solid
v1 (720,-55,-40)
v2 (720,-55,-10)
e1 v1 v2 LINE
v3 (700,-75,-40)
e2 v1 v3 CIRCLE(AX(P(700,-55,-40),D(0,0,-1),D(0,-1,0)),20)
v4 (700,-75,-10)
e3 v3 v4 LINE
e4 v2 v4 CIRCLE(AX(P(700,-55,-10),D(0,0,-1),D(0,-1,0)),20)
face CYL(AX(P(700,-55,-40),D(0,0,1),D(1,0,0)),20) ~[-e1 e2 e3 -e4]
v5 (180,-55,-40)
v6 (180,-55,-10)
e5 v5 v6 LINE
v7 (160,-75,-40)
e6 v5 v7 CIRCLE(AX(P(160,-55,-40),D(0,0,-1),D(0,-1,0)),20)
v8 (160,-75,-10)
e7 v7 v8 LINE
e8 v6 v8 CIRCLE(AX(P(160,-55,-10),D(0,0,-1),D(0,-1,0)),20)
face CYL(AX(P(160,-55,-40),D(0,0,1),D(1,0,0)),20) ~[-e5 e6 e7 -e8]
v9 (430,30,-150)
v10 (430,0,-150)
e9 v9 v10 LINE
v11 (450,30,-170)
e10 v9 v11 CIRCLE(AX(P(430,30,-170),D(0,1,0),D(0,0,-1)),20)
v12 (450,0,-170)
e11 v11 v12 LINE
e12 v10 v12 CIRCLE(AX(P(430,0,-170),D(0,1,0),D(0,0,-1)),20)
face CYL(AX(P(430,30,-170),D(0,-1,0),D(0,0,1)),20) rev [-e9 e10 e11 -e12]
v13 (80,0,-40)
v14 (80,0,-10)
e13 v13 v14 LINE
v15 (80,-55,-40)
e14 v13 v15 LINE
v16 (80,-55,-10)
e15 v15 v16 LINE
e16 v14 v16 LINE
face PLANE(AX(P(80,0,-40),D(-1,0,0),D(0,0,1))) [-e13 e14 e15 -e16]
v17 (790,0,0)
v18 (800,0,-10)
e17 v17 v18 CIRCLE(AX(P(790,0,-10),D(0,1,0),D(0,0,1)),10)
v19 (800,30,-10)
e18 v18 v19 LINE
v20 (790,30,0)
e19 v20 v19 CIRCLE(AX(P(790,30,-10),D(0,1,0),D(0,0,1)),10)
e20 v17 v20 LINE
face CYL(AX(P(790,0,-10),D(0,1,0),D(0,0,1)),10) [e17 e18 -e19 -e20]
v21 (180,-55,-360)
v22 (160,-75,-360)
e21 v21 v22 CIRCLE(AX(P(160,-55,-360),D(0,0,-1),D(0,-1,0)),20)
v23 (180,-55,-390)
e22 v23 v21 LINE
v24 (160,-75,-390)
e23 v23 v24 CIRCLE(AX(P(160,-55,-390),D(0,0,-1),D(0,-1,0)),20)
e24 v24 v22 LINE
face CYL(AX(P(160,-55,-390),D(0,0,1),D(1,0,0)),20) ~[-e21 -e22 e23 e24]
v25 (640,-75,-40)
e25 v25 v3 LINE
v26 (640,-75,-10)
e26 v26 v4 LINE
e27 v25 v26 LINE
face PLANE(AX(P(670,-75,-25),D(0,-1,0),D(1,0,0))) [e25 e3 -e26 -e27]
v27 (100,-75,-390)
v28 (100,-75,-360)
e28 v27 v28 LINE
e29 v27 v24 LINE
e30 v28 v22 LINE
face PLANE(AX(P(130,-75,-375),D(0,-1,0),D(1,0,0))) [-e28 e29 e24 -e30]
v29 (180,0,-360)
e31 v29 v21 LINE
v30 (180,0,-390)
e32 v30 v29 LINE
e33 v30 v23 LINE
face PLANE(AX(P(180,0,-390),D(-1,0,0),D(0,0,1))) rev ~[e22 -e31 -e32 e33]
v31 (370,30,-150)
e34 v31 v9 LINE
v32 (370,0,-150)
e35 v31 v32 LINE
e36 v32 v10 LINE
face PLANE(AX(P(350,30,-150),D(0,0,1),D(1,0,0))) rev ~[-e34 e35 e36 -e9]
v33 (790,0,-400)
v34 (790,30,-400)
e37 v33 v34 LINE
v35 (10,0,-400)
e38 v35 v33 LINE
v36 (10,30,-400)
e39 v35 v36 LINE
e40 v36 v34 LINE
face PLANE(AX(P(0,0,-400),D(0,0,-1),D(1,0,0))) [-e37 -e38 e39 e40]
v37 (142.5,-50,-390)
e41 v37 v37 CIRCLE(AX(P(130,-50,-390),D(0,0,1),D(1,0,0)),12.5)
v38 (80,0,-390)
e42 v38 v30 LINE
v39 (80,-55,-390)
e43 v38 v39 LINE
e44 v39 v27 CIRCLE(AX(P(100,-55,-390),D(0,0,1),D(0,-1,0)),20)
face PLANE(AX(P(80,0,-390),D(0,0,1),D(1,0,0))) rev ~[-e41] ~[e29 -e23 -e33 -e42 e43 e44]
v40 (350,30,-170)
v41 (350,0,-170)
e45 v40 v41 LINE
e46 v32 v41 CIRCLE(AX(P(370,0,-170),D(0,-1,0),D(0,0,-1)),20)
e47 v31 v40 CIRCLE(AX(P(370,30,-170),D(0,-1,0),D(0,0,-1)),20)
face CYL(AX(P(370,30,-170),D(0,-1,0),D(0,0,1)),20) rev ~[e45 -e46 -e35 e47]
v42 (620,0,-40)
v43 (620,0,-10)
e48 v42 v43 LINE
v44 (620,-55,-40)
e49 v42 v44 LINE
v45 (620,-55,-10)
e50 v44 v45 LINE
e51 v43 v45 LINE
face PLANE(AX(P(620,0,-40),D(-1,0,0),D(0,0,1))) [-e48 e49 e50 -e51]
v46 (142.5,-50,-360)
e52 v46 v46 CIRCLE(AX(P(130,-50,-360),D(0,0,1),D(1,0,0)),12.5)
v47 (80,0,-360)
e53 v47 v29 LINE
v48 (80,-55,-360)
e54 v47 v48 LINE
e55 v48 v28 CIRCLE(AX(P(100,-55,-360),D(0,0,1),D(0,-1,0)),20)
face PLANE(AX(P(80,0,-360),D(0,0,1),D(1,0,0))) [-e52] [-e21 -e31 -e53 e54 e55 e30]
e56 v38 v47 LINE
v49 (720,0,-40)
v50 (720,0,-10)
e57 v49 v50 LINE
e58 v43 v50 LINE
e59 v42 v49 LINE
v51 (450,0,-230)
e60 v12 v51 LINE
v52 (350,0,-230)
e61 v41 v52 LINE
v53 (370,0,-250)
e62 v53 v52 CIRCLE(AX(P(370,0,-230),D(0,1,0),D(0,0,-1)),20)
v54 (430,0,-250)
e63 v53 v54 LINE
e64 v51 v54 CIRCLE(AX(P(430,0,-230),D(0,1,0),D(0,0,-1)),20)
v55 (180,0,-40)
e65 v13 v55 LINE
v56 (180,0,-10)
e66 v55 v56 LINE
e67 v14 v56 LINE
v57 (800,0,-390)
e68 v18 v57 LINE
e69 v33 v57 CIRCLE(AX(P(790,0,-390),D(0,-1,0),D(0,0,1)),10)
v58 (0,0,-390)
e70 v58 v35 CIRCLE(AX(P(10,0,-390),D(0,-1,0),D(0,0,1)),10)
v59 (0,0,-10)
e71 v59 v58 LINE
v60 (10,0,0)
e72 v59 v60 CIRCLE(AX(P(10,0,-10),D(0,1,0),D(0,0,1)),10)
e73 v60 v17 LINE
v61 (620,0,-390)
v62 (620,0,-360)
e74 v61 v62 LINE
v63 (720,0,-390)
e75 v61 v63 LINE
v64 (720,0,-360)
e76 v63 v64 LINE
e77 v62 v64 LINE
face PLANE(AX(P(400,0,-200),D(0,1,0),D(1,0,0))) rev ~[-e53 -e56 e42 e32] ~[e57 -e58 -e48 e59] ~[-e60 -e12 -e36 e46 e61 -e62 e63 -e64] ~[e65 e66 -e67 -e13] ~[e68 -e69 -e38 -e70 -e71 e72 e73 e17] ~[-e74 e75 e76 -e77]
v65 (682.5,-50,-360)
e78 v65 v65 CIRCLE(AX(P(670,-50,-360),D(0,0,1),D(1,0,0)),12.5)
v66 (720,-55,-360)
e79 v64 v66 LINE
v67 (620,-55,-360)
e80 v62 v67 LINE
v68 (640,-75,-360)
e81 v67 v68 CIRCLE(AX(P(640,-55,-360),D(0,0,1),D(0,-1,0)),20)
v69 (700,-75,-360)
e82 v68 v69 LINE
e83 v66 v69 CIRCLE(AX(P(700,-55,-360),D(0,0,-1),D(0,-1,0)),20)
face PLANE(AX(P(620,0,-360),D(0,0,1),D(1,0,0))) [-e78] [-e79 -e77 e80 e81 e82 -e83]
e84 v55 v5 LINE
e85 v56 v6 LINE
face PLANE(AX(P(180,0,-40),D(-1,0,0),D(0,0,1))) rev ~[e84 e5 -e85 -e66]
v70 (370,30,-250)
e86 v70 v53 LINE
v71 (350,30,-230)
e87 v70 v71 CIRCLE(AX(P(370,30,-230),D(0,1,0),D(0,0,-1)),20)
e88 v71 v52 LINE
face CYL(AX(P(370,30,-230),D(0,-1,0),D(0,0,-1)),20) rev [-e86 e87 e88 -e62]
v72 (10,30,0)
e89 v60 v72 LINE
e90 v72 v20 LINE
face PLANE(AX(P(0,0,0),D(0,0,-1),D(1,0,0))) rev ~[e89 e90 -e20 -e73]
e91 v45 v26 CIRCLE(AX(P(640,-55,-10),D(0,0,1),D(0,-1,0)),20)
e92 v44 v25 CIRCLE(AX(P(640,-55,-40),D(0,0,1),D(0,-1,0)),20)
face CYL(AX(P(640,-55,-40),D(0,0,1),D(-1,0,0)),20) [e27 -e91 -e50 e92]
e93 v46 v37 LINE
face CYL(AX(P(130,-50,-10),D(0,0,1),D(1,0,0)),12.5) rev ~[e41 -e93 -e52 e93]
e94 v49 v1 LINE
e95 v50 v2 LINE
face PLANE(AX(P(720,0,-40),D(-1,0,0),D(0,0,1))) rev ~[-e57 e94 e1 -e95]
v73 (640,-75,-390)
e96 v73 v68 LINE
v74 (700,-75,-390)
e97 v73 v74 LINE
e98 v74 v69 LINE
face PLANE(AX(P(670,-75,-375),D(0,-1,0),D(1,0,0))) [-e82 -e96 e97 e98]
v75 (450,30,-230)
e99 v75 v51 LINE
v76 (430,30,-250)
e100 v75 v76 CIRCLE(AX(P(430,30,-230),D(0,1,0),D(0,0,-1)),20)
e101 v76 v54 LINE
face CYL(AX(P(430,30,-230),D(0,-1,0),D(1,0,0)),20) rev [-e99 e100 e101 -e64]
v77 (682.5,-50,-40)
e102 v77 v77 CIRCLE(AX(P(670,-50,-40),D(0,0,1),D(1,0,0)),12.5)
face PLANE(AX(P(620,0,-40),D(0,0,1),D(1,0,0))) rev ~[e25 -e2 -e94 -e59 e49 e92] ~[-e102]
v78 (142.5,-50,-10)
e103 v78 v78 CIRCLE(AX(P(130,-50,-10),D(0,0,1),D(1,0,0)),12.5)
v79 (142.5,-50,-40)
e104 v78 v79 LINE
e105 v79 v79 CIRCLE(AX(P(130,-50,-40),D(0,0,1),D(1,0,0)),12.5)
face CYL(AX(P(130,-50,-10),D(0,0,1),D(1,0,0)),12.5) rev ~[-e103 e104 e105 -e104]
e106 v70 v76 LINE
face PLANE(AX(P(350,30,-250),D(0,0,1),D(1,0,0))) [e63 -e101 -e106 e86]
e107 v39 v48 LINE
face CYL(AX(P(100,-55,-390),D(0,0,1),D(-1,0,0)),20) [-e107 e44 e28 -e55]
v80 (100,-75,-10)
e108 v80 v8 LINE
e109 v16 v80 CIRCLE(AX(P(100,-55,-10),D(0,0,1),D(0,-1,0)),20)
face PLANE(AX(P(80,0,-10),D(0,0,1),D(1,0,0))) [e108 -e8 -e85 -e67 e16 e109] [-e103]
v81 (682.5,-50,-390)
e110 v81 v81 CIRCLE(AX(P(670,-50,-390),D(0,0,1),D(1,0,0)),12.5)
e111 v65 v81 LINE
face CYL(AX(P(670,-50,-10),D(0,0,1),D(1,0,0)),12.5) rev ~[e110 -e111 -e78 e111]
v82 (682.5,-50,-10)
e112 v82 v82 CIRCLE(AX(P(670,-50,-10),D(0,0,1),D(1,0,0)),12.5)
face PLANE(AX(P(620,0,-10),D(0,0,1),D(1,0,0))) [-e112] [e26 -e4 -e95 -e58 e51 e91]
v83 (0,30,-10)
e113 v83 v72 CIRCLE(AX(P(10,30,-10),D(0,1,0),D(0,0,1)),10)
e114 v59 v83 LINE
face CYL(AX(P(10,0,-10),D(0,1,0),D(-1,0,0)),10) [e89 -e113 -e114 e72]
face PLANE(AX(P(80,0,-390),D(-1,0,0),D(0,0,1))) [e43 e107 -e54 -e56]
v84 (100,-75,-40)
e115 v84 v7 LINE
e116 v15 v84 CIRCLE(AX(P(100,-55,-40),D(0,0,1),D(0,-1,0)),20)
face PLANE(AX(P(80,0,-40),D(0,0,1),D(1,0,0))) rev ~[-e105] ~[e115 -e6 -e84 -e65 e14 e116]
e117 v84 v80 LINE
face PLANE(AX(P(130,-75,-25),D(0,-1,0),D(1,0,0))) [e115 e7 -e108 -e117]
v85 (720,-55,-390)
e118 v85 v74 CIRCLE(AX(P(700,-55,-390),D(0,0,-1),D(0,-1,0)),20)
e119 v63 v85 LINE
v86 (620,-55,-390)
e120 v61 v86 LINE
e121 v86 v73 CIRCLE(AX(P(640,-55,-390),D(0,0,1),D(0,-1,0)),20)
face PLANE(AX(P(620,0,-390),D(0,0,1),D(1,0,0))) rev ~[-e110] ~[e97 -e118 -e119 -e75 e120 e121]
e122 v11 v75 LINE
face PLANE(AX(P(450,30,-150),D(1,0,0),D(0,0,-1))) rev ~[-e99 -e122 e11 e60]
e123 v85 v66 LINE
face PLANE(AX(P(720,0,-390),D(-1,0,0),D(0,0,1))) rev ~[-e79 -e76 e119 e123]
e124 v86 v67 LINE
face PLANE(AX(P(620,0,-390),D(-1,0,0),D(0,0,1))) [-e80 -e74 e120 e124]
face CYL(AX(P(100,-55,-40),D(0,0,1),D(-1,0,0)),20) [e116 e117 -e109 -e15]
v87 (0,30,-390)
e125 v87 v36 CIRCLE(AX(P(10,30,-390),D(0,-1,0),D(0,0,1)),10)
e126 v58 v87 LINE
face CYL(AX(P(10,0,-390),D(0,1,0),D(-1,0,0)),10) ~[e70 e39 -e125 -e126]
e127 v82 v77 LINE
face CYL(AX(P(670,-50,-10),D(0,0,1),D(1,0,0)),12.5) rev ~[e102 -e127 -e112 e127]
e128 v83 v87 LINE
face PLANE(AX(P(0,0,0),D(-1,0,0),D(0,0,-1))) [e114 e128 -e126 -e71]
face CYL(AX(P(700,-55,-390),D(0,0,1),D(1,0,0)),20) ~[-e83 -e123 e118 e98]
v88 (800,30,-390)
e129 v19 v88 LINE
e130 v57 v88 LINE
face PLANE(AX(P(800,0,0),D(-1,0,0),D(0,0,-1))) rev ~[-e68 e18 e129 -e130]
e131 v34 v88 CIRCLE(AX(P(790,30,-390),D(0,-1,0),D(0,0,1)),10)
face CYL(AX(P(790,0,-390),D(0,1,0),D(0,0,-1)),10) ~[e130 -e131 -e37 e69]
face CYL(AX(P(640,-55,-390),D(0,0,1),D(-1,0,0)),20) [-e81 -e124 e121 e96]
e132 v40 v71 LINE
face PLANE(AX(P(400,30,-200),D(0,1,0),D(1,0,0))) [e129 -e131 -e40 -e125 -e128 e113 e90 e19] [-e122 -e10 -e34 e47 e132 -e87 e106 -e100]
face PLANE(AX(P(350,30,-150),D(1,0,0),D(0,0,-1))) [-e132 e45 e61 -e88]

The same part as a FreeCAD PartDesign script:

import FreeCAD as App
import Part
import Sketcher

V = App.Vector
Q = App.Units.Quantity


def edges_at(feature, points):
    """Names of the edges that pass closest to the given points."""
    edges = feature.Shape.Edges
    near = lambda p: min(range(len(edges)), key=lambda i: edges[i].distToShape(Part.Vertex(*p))[0])
    return sorted({f"Edge{near(p) + 1}" for p in points})

doc = App.newDocument("Part")
params = doc.addObject("Spreadsheet::Sheet", "Params")
for row, (alias, value) in enumerate([
    ("sketch1_width", "800 mm"),
    ("sketch1_height", "400 mm"),
    ("pad1_length", "30 mm"),
    ("sketch2_width", "100 mm"),
    ("fillet_radius", "20 mm"),
    ("sketch3_width", "100 mm"),
    ("sketch3_height", "30 mm"),
    ("pad2_length", "75 mm"),
    ("sketch4_diameter", "25 mm"),
    ("sketch5_diameter", "25 mm"),
    ("fillet2_radius", "20 mm"),
    ("fillet3_radius", "10 mm"),
], start=1):
    params.set(f"A{row}", alias)
    params.set(f"B{row}", "=" + value)
    params.setAlias(f"B{row}", alias)

body = doc.addObject("PartDesign::Body", "Body")

# Sketch on XZ plane
sketch1 = body.newObject("Sketcher::SketchObject", "Sketch")
sketch1.AttachmentSupport = (doc.getObject("XZ_Plane"), [""])
sketch1.MapMode = "FlatFace"
sketch1.addGeometry(Part.LineSegment(V(0, -400, 0), V(0, 0, 0)), False)
sketch1.addGeometry(Part.LineSegment(V(0, 0, 0), V(800, 0, 0)), False)
sketch1.addGeometry(Part.LineSegment(V(800, 0, 0), V(800, -400, 0)), False)
sketch1.addGeometry(Part.LineSegment(V(800, -400, 0), V(0, -400, 0)), False)
sketch1.addConstraint(Sketcher.Constraint("Coincident", 0, 2, 1, 1))
sketch1.addConstraint(Sketcher.Constraint("Coincident", 1, 2, 2, 1))
sketch1.addConstraint(Sketcher.Constraint("Coincident", 2, 2, 3, 1))
sketch1.addConstraint(Sketcher.Constraint("Coincident", 3, 2, 0, 1))
sketch1.addConstraint(Sketcher.Constraint("Vertical", 0))
sketch1.addConstraint(Sketcher.Constraint("Horizontal", 1))
sketch1.addConstraint(Sketcher.Constraint("Vertical", 2))
sketch1.addConstraint(Sketcher.Constraint("Horizontal", 3))
sketch1.addConstraint(Sketcher.Constraint("Coincident", 0, 2, -1, 1))
sketch1.addConstraint(Sketcher.Constraint("DistanceX", 1, 1, 1, 2, Q("800 mm")))
sketch1.addConstraint(Sketcher.Constraint("DistanceY", 0, 1, 0, 2, Q("400 mm")))
sketch1.setExpression("Constraints[9]", "Params.sketch1_width")
sketch1.setExpression("Constraints[10]", "Params.sketch1_height")
pad1 = body.newObject("PartDesign::Pad", "Pad")
pad1.Profile = sketch1
pad1.setExpression("Length", "Params.pad1_length")
pad1.Reversed = True

# Sketch on XZ plane
sketch2 = body.newObject("Sketcher::SketchObject", "Sketch001")
sketch2.AttachmentSupport = (doc.getObject("XZ_Plane"), [""])
sketch2.MapMode = "FlatFace"
sketch2.AttachmentOffset = App.Placement(V(0, 0, -30), App.Rotation())
sketch2.addGeometry(Part.LineSegment(V(350, -250, 0), V(350, -150, 0)), False)
sketch2.addGeometry(Part.LineSegment(V(350, -150, 0), V(450, -150, 0)), False)
sketch2.addGeometry(Part.LineSegment(V(450, -150, 0), V(450, -250, 0)), False)
sketch2.addGeometry(Part.LineSegment(V(450, -250, 0), V(350, -250, 0)), False)
sketch2.addConstraint(Sketcher.Constraint("Coincident", 0, 2, 1, 1))
sketch2.addConstraint(Sketcher.Constraint("Coincident", 1, 2, 2, 1))
sketch2.addConstraint(Sketcher.Constraint("Coincident", 2, 2, 3, 1))
sketch2.addConstraint(Sketcher.Constraint("Coincident", 3, 2, 0, 1))
sketch2.addConstraint(Sketcher.Constraint("Vertical", 0))
sketch2.addConstraint(Sketcher.Constraint("Horizontal", 1))
sketch2.addConstraint(Sketcher.Constraint("Vertical", 2))
sketch2.addConstraint(Sketcher.Constraint("Horizontal", 3))
sketch2.addConstraint(Sketcher.Constraint("Equal", 3, 0))
sketch2.addConstraint(Sketcher.Constraint("DistanceX", 1, 1, 1, 2, Q("100 mm")))
sketch2.addConstraint(Sketcher.Constraint("DistanceX", -1, 1, 0, 2, Q("350 mm")))
sketch2.addConstraint(Sketcher.Constraint("DistanceY", 0, 2, -1, 1, Q("150 mm")))
sketch2.setExpression("Constraints[9]", "Params.sketch2_width")
pocket1 = body.newObject("PartDesign::Pocket", "Pocket")
pocket1.Profile = sketch2
pocket1.Type = "ThroughAll"
pocket1.Reversed = True
doc.recompute()

fillet = body.newObject("PartDesign::Fillet", "Fillet")
fillet.Base = (pocket1, edges_at(pocket1, [
    (350, 15, -250),
    (450, 15, -250),
    (450, 15, -150),
    (350, 15, -150),
]))
fillet.setExpression("Radius", "Params.fillet_radius")

# Sketch on XZ plane
sketch3 = body.newObject("Sketcher::SketchObject", "Sketch002")
sketch3.AttachmentSupport = (doc.getObject("XZ_Plane"), [""])
sketch3.MapMode = "FlatFace"
sketch3.addGeometry(Part.LineSegment(V(80, -10, 0), V(80, -40, 0)), False)
sketch3.addGeometry(Part.LineSegment(V(80, -40, 0), V(180, -40, 0)), False)
sketch3.addGeometry(Part.LineSegment(V(180, -40, 0), V(180, -10, 0)), False)
sketch3.addGeometry(Part.LineSegment(V(180, -10, 0), V(80, -10, 0)), False)
sketch3.addGeometry(Part.LineSegment(V(620, -10, 0), V(620, -40, 0)), False)
sketch3.addGeometry(Part.LineSegment(V(620, -40, 0), V(720, -40, 0)), False)
sketch3.addGeometry(Part.LineSegment(V(720, -40, 0), V(720, -10, 0)), False)
sketch3.addGeometry(Part.LineSegment(V(720, -10, 0), V(620, -10, 0)), False)
sketch3.addGeometry(Part.LineSegment(V(620, -360, 0), V(620, -390, 0)), False)
sketch3.addGeometry(Part.LineSegment(V(620, -390, 0), V(720, -390, 0)), False)
sketch3.addGeometry(Part.LineSegment(V(720, -390, 0), V(720, -360, 0)), False)
sketch3.addGeometry(Part.LineSegment(V(720, -360, 0), V(620, -360, 0)), False)
sketch3.addGeometry(Part.LineSegment(V(80, -360, 0), V(80, -390, 0)), False)
sketch3.addGeometry(Part.LineSegment(V(80, -390, 0), V(180, -390, 0)), False)
sketch3.addGeometry(Part.LineSegment(V(180, -390, 0), V(180, -360, 0)), False)
sketch3.addGeometry(Part.LineSegment(V(180, -360, 0), V(80, -360, 0)), False)
sketch3.addConstraint(Sketcher.Constraint("Coincident", 0, 2, 1, 1))
sketch3.addConstraint(Sketcher.Constraint("Coincident", 1, 2, 2, 1))
sketch3.addConstraint(Sketcher.Constraint("Coincident", 2, 2, 3, 1))
sketch3.addConstraint(Sketcher.Constraint("Coincident", 3, 2, 0, 1))
sketch3.addConstraint(Sketcher.Constraint("Coincident", 4, 2, 5, 1))
sketch3.addConstraint(Sketcher.Constraint("Coincident", 5, 2, 6, 1))
sketch3.addConstraint(Sketcher.Constraint("Coincident", 6, 2, 7, 1))
sketch3.addConstraint(Sketcher.Constraint("Coincident", 7, 2, 4, 1))
sketch3.addConstraint(Sketcher.Constraint("Coincident", 8, 2, 9, 1))
sketch3.addConstraint(Sketcher.Constraint("Coincident", 9, 2, 10, 1))
sketch3.addConstraint(Sketcher.Constraint("Coincident", 10, 2, 11, 1))
sketch3.addConstraint(Sketcher.Constraint("Coincident", 11, 2, 8, 1))
sketch3.addConstraint(Sketcher.Constraint("Coincident", 12, 2, 13, 1))
sketch3.addConstraint(Sketcher.Constraint("Coincident", 13, 2, 14, 1))
sketch3.addConstraint(Sketcher.Constraint("Coincident", 14, 2, 15, 1))
sketch3.addConstraint(Sketcher.Constraint("Coincident", 15, 2, 12, 1))
sketch3.addConstraint(Sketcher.Constraint("Vertical", 0))
sketch3.addConstraint(Sketcher.Constraint("Horizontal", 1))
sketch3.addConstraint(Sketcher.Constraint("Vertical", 2))
sketch3.addConstraint(Sketcher.Constraint("Horizontal", 3))
sketch3.addConstraint(Sketcher.Constraint("Vertical", 4))
sketch3.addConstraint(Sketcher.Constraint("Horizontal", 5))
sketch3.addConstraint(Sketcher.Constraint("Vertical", 6))
sketch3.addConstraint(Sketcher.Constraint("Horizontal", 7))
sketch3.addConstraint(Sketcher.Constraint("Vertical", 8))
sketch3.addConstraint(Sketcher.Constraint("Horizontal", 9))
sketch3.addConstraint(Sketcher.Constraint("Vertical", 10))
sketch3.addConstraint(Sketcher.Constraint("Horizontal", 11))
sketch3.addConstraint(Sketcher.Constraint("Vertical", 12))
sketch3.addConstraint(Sketcher.Constraint("Horizontal", 13))
sketch3.addConstraint(Sketcher.Constraint("Vertical", 14))
sketch3.addConstraint(Sketcher.Constraint("Horizontal", 15))
sketch3.addConstraint(Sketcher.Constraint("Horizontal", 1, 2, 4, 2))
sketch3.addConstraint(Sketcher.Constraint("Horizontal", 3, 2, 6, 2))
sketch3.addConstraint(Sketcher.Constraint("Horizontal", 9, 2, 12, 2))
sketch3.addConstraint(Sketcher.Constraint("Horizontal", 11, 2, 14, 2))
sketch3.addConstraint(Sketcher.Constraint("Vertical", 7, 2, 8, 2))
sketch3.addConstraint(Sketcher.Constraint("Vertical", 6, 2, 9, 2))
sketch3.addConstraint(Sketcher.Constraint("Vertical", 3, 2, 12, 2))
sketch3.addConstraint(Sketcher.Constraint("Vertical", 2, 2, 13, 2))
sketch3.addConstraint(Sketcher.Constraint("Equal", 3, 5))
sketch3.addConstraint(Sketcher.Constraint("Equal", 6, 8))
sketch3.addConstraint(Sketcher.Constraint("DistanceX", 1, 1, 1, 2, Q("100 mm")))
sketch3.addConstraint(Sketcher.Constraint("DistanceY", 0, 2, 0, 1, Q("30 mm")))
sketch3.addConstraint(Sketcher.Constraint("DistanceX", -1, 1, 0, 2, Q("80 mm")))
sketch3.addConstraint(Sketcher.Constraint("DistanceY", 0, 2, -1, 1, Q("40 mm")))
sketch3.addConstraint(Sketcher.Constraint("DistanceX", -1, 1, 4, 2, Q("620 mm")))
sketch3.addConstraint(Sketcher.Constraint("DistanceY", 8, 2, -1, 1, Q("390 mm")))
sketch3.setExpression("Constraints[42]", "Params.sketch3_width")
sketch3.setExpression("Constraints[43]", "Params.sketch3_height")
pad2 = body.newObject("PartDesign::Pad", "Pad001")
pad2.Profile = sketch3
pad2.setExpression("Length", "Params.pad2_length")

# Sketch on XY plane
sketch4 = body.newObject("Sketcher::SketchObject", "Sketch003")
sketch4.AttachmentSupport = (doc.getObject("XY_Plane"), [""])
sketch4.MapMode = "FlatFace"
sketch4.AttachmentOffset = App.Placement(V(0, 0, -10), App.Rotation())
sketch4.addGeometry(Part.Circle(V(130, -50, 0), V(0, 0, 1), 12), False)
sketch4.addConstraint(Sketcher.Constraint("Diameter", 0, Q("25 mm")))
sketch4.addConstraint(Sketcher.Constraint("DistanceX", -1, 1, 0, 3, Q("130 mm")))
sketch4.addConstraint(Sketcher.Constraint("DistanceY", 0, 3, -1, 1, Q("50 mm")))
sketch4.setExpression("Constraints[0]", "Params.sketch4_diameter")
pocket2 = body.newObject("PartDesign::Pocket", "Pocket001")
pocket2.Profile = sketch4
pocket2.Type = "ThroughAll"

# Sketch on XY plane
sketch5 = body.newObject("Sketcher::SketchObject", "Sketch004")
sketch5.AttachmentSupport = (doc.getObject("XY_Plane"), [""])
sketch5.MapMode = "FlatFace"
sketch5.AttachmentOffset = App.Placement(V(0, 0, -10), App.Rotation())
sketch5.addGeometry(Part.Circle(V(670, -50, 0), V(0, 0, 1), 12), False)
sketch5.addConstraint(Sketcher.Constraint("Diameter", 0, Q("25 mm")))
sketch5.addConstraint(Sketcher.Constraint("DistanceX", -1, 1, 0, 3, Q("670 mm")))
sketch5.addConstraint(Sketcher.Constraint("DistanceY", 0, 3, -1, 1, Q("50 mm")))
sketch5.setExpression("Constraints[0]", "Params.sketch5_diameter")
pocket3 = body.newObject("PartDesign::Pocket", "Pocket002")
pocket3.Profile = sketch5
pocket3.Type = "ThroughAll"
doc.recompute()

fillet2 = body.newObject("PartDesign::Fillet", "Fillet001")
fillet2.Base = (pocket3, edges_at(pocket3, [
    (180, -75, -375),
    (80, -75, -375),
    (720, -75, -375),
    (620, -75, -375),
    (620, -75, -25),
    (720, -75, -25),
    (80, -75, -25),
    (180, -75, -25),
]))
fillet2.setExpression("Radius", "Params.fillet2_radius")
doc.recompute()

fillet3 = body.newObject("PartDesign::Fillet", "Fillet002")
fillet3.Base = (fillet2, edges_at(fillet2, [
    (0, 15, -400),
    (800, 15, -400),
    (800, 15, 0),
    (0, 15, 0),
]))
fillet3.setExpression("Radius", "Params.fillet3_radius")

doc.recompute()
